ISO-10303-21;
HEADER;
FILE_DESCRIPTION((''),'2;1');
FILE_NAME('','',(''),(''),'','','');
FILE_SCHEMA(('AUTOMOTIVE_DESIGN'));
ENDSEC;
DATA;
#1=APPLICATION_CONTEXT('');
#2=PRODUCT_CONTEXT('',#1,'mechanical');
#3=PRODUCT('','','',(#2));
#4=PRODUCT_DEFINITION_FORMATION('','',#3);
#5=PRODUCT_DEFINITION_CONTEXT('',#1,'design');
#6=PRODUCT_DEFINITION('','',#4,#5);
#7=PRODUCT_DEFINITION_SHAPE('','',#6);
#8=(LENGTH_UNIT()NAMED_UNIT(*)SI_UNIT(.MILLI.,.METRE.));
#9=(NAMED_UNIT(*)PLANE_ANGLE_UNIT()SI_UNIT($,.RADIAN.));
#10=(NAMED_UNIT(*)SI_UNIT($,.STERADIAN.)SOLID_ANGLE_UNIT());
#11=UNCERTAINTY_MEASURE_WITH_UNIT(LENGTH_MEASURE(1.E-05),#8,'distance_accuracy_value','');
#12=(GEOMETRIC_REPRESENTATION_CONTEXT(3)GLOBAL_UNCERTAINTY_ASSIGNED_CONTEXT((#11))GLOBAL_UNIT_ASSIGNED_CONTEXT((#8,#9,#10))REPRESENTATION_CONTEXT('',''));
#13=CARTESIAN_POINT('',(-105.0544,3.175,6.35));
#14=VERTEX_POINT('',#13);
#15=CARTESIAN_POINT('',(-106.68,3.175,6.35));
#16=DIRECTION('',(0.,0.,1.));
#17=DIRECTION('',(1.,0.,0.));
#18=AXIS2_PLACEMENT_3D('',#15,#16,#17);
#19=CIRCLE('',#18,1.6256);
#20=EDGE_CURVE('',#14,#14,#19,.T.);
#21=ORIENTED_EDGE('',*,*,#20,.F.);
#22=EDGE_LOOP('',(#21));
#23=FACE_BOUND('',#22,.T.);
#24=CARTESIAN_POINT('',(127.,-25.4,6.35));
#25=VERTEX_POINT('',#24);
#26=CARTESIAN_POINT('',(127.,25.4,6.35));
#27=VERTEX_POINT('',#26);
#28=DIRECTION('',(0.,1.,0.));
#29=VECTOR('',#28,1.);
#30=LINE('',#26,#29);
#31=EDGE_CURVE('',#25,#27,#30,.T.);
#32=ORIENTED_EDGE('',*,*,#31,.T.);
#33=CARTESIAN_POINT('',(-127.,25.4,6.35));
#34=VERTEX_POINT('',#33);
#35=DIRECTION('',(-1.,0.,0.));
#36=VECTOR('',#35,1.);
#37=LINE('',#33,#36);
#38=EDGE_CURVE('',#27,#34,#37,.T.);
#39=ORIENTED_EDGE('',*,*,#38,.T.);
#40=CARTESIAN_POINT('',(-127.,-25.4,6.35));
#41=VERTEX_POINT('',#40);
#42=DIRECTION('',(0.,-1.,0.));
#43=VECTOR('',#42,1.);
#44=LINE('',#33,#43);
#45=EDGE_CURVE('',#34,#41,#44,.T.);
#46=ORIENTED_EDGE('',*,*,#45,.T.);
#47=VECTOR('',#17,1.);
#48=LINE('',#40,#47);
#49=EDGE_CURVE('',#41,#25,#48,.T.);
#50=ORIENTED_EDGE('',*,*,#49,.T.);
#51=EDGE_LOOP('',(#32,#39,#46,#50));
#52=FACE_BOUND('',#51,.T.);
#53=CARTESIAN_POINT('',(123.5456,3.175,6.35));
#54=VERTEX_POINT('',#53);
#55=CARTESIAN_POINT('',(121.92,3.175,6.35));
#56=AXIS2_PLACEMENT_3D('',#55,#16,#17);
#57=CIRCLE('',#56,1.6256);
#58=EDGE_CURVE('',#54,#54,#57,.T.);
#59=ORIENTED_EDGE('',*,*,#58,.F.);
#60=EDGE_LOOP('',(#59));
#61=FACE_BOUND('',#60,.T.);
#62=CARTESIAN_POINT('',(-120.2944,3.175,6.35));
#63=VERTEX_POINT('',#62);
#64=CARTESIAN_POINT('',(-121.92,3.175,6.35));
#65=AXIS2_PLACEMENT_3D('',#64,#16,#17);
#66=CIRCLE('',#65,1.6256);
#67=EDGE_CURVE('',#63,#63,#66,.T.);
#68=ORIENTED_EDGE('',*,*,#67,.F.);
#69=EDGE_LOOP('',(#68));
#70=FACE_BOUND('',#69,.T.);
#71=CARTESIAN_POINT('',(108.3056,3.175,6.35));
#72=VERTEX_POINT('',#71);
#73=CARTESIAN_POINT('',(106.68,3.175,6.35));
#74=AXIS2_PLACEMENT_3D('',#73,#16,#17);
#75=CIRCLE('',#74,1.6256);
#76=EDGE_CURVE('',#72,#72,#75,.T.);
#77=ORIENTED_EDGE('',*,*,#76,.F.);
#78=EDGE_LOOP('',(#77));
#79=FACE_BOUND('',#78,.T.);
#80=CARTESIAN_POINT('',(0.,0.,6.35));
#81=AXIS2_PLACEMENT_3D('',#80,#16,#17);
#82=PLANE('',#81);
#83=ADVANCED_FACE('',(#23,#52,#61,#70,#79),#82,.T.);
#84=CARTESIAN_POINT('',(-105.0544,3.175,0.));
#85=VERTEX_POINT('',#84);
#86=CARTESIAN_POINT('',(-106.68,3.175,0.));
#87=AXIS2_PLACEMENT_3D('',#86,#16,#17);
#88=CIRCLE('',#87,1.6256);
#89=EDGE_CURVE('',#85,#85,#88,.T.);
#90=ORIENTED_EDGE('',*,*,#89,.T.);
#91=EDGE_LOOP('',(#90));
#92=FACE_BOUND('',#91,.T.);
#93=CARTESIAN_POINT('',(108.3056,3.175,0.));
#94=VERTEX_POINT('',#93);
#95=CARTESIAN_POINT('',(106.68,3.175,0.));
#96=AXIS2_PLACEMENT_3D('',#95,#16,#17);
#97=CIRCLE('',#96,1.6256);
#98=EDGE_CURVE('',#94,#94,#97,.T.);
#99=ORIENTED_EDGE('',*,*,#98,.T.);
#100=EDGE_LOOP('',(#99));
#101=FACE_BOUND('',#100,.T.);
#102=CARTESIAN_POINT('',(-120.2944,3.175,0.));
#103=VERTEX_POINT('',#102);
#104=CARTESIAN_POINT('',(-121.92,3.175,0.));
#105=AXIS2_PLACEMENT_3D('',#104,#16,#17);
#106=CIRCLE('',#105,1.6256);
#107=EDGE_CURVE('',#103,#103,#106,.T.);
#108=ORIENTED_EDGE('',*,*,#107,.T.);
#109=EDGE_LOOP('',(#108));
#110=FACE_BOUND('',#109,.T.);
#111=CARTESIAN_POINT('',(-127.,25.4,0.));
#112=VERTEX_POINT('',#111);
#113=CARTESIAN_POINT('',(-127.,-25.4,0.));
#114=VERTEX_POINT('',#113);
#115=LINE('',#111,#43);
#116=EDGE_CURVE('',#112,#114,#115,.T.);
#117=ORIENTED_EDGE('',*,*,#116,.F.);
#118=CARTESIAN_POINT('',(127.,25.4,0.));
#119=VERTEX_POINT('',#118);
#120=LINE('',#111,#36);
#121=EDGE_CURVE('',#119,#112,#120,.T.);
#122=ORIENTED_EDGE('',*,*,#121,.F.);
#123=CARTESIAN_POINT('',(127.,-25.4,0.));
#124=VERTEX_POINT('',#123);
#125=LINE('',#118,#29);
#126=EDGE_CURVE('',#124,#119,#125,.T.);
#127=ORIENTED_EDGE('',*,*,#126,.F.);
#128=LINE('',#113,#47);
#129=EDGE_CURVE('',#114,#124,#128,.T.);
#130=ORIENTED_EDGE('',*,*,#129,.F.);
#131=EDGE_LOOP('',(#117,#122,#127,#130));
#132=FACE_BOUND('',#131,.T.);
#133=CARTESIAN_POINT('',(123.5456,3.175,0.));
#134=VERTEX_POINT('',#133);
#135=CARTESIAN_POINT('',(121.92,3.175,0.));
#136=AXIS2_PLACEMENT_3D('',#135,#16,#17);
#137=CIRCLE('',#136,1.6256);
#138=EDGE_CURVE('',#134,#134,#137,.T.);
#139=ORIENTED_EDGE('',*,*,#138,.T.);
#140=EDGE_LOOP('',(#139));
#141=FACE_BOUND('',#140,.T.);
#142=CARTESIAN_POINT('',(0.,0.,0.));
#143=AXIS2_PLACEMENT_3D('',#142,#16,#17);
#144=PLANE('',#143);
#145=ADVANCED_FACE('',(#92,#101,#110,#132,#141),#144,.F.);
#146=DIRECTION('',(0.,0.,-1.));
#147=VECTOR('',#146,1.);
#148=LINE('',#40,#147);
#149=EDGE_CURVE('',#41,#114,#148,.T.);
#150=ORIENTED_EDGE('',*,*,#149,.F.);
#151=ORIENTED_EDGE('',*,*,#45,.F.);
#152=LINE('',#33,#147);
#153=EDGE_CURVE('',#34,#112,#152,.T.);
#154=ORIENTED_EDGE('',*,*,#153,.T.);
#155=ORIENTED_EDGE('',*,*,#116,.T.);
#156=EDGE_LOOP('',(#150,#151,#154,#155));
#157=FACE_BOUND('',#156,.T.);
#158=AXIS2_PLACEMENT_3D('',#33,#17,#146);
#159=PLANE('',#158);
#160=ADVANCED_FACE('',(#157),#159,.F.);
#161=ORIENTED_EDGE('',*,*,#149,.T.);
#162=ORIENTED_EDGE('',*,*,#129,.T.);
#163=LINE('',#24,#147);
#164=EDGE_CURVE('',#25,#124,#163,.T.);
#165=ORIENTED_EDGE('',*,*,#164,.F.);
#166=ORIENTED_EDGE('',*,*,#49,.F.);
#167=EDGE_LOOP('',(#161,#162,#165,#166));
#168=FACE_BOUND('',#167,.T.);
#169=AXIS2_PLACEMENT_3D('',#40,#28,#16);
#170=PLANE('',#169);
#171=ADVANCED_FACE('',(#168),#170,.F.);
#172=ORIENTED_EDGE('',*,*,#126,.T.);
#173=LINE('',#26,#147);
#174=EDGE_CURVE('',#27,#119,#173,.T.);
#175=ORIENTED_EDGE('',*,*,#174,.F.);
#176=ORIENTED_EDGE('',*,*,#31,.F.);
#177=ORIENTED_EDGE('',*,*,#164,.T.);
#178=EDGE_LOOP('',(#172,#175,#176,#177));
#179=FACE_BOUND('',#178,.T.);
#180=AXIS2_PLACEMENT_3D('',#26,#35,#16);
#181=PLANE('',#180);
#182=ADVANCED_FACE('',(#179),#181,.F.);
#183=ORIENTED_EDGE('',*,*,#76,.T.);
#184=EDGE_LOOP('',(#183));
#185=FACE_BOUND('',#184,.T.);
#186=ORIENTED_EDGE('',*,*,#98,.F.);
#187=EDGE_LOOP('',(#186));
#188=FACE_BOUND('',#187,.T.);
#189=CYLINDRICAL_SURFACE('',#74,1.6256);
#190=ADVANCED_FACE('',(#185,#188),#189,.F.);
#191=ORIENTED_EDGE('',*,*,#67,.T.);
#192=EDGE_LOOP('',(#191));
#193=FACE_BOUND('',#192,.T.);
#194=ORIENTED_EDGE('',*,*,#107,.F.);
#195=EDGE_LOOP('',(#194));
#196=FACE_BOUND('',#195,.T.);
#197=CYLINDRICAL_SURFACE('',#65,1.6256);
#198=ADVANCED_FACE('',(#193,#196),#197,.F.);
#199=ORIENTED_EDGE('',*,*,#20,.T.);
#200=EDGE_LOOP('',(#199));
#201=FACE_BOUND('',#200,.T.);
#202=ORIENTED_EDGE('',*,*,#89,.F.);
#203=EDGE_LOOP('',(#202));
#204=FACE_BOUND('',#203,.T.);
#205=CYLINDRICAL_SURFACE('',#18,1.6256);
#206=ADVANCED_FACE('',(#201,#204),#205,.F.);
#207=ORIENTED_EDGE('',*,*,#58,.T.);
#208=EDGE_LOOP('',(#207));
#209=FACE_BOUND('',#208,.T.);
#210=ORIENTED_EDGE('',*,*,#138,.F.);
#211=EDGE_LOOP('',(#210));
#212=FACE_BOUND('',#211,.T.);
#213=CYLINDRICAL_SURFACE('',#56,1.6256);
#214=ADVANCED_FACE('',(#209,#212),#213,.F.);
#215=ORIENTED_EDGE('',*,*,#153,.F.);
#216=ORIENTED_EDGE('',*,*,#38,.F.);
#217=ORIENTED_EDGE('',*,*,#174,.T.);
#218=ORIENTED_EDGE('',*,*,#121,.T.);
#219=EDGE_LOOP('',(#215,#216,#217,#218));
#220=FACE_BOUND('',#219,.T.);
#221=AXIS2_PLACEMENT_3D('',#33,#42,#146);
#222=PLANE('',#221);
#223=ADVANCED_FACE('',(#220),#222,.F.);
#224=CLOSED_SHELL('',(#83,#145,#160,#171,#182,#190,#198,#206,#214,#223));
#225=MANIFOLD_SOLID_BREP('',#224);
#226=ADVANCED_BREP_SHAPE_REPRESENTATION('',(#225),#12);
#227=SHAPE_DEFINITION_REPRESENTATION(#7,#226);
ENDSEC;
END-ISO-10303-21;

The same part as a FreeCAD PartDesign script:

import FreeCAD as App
import Part
import Sketcher
Q = App.Units.Quantity

doc = App.newDocument("Part")
body = doc.addObject("PartDesign::Body", "Body")

sketch1 = doc.addObject("Sketcher::SketchObject", "Sketch")
body.addObject(sketch1)
sketch1.AttachmentSupport = (doc.XY_Plane, [""])
sketch1.MapMode = "FlatFace"
sketch1.addGeometry(Part.LineSegment(App.Vector(-127, 25, 0), App.Vector(-127, -25, 0)), False)
sketch1.addGeometry(Part.LineSegment(App.Vector(-127, -25, 0), App.Vector(127, -25, 0)), False)
sketch1.addGeometry(Part.LineSegment(App.Vector(127, -25, 0), App.Vector(127, 25, 0)), False)
sketch1.addGeometry(Part.LineSegment(App.Vector(127, 25, 0), App.Vector(-127, 25, 0)), False)
sketch1.addConstraint(Sketcher.Constraint("Coincident", 0, 2, 1, 1))
sketch1.addConstraint(Sketcher.Constraint("Coincident", 1, 2, 2, 1))
sketch1.addConstraint(Sketcher.Constraint("Coincident", 2, 2, 3, 1))
sketch1.addConstraint(Sketcher.Constraint("Coincident", 3, 2, 0, 1))
sketch1.addConstraint(Sketcher.Constraint("Vertical", 0))
sketch1.addConstraint(Sketcher.Constraint("Horizontal", 1))
sketch1.addConstraint(Sketcher.Constraint("Vertical", 2))
sketch1.addConstraint(Sketcher.Constraint("Horizontal", 3))
sketch1.addConstraint(Sketcher.Constraint("Symmetric", 0, 2, 2, 2, -1, 1))
sketch1.addConstraint(Sketcher.Constraint("DistanceX", 1, 1, 1, 2, Q("10 in")))
sketch1.addConstraint(Sketcher.Constraint("DistanceY", 0, 2, 0, 1, Q("2 in")))
pad1 = doc.addObject("PartDesign::Pad", "Pad")
body.addObject(pad1)
pad1.Profile = sketch1
pad1.Length = Q("0.25 in")

sketch2 = doc.addObject("Sketcher::SketchObject", "Sketch001")
body.addObject(sketch2)
sketch2.AttachmentSupport = (doc.XY_Plane, [""])
sketch2.MapMode = "FlatFace"
sketch2.AttachmentOffset = App.Placement(App.Vector(0, 0, 0.25 * 25.4), App.Rotation())
sketch2.addGeometry(Part.Circle(App.Vector(-121.9, 3.2, 0), App.Vector(0, 0, 1), 1.6), False)
sketch2.addGeometry(Part.Circle(App.Vector(-106.7, 3.2, 0), App.Vector(0, 0, 1), 1.6), False)
sketch2.addConstraint(Sketcher.Constraint("Equal", 0, 1))
sketch2.addConstraint(Sketcher.Constraint("Horizontal", 0, 3, 1, 3))
sketch2.addConstraint(Sketcher.Constraint("Diameter", 0, Q("0.128 in")))
sketch2.addConstraint(Sketcher.Constraint("DistanceX", 0, 3, -1, 1, Q("4.8 in")))
sketch2.addConstraint(Sketcher.Constraint("DistanceX", 1, 3, -1, 1, Q("4.2 in")))
sketch2.addConstraint(Sketcher.Constraint("DistanceY", -1, 1, 0, 3, Q("0.125 in")))
doc.recompute()
hole = doc.addObject("PartDesign::Hole", "Hole")
body.addObject(hole)
hole.Profile = sketch2
hole.ThreadType = "None"
hole.Diameter = Q("0.128 in")
hole.DepthType = "ThroughAll"

sketch3 = doc.addObject("Sketcher::SketchObject", "Sketch002")
body.addObject(sketch3)
sketch3.AttachmentSupport = (doc.XY_Plane, [""])
sketch3.MapMode = "FlatFace"
sketch3.AttachmentOffset = App.Placement(App.Vector(0, 0, 0.25 * 25.4), App.Rotation())
sketch3.addGeometry(Part.Circle(App.Vector(121.9, 3.2, 0), App.Vector(0, 0, 1), 1.6), False)
sketch3.addGeometry(Part.Circle(App.Vector(106.7, 3.2, 0), App.Vector(0, 0, 1), 1.6), False)
sketch3.addConstraint(Sketcher.Constraint("Equal", 0, 1))
sketch3.addConstraint(Sketcher.Constraint("Horizontal", 0, 3, 1, 3))
sketch3.addConstraint(Sketcher.Constraint("Diameter", 0, Q("0.128 in")))
sketch3.addConstraint(Sketcher.Constraint("DistanceX", -1, 1, 0, 3, Q("4.8 in")))
sketch3.addConstraint(Sketcher.Constraint("DistanceX", -1, 1, 1, 3, Q("4.2 in")))
sketch3.addConstraint(Sketcher.Constraint("DistanceY", -1, 1, 0, 3, Q("0.125 in")))
doc.recompute()
hole2 = doc.addObject("PartDesign::Hole", "Hole001")
body.addObject(hole2)
hole2.Profile = sketch3
hole2.ThreadType = "None"
hole2.Diameter = Q("0.128 in")
hole2.DepthType = "ThroughAll"

doc.recompute()
